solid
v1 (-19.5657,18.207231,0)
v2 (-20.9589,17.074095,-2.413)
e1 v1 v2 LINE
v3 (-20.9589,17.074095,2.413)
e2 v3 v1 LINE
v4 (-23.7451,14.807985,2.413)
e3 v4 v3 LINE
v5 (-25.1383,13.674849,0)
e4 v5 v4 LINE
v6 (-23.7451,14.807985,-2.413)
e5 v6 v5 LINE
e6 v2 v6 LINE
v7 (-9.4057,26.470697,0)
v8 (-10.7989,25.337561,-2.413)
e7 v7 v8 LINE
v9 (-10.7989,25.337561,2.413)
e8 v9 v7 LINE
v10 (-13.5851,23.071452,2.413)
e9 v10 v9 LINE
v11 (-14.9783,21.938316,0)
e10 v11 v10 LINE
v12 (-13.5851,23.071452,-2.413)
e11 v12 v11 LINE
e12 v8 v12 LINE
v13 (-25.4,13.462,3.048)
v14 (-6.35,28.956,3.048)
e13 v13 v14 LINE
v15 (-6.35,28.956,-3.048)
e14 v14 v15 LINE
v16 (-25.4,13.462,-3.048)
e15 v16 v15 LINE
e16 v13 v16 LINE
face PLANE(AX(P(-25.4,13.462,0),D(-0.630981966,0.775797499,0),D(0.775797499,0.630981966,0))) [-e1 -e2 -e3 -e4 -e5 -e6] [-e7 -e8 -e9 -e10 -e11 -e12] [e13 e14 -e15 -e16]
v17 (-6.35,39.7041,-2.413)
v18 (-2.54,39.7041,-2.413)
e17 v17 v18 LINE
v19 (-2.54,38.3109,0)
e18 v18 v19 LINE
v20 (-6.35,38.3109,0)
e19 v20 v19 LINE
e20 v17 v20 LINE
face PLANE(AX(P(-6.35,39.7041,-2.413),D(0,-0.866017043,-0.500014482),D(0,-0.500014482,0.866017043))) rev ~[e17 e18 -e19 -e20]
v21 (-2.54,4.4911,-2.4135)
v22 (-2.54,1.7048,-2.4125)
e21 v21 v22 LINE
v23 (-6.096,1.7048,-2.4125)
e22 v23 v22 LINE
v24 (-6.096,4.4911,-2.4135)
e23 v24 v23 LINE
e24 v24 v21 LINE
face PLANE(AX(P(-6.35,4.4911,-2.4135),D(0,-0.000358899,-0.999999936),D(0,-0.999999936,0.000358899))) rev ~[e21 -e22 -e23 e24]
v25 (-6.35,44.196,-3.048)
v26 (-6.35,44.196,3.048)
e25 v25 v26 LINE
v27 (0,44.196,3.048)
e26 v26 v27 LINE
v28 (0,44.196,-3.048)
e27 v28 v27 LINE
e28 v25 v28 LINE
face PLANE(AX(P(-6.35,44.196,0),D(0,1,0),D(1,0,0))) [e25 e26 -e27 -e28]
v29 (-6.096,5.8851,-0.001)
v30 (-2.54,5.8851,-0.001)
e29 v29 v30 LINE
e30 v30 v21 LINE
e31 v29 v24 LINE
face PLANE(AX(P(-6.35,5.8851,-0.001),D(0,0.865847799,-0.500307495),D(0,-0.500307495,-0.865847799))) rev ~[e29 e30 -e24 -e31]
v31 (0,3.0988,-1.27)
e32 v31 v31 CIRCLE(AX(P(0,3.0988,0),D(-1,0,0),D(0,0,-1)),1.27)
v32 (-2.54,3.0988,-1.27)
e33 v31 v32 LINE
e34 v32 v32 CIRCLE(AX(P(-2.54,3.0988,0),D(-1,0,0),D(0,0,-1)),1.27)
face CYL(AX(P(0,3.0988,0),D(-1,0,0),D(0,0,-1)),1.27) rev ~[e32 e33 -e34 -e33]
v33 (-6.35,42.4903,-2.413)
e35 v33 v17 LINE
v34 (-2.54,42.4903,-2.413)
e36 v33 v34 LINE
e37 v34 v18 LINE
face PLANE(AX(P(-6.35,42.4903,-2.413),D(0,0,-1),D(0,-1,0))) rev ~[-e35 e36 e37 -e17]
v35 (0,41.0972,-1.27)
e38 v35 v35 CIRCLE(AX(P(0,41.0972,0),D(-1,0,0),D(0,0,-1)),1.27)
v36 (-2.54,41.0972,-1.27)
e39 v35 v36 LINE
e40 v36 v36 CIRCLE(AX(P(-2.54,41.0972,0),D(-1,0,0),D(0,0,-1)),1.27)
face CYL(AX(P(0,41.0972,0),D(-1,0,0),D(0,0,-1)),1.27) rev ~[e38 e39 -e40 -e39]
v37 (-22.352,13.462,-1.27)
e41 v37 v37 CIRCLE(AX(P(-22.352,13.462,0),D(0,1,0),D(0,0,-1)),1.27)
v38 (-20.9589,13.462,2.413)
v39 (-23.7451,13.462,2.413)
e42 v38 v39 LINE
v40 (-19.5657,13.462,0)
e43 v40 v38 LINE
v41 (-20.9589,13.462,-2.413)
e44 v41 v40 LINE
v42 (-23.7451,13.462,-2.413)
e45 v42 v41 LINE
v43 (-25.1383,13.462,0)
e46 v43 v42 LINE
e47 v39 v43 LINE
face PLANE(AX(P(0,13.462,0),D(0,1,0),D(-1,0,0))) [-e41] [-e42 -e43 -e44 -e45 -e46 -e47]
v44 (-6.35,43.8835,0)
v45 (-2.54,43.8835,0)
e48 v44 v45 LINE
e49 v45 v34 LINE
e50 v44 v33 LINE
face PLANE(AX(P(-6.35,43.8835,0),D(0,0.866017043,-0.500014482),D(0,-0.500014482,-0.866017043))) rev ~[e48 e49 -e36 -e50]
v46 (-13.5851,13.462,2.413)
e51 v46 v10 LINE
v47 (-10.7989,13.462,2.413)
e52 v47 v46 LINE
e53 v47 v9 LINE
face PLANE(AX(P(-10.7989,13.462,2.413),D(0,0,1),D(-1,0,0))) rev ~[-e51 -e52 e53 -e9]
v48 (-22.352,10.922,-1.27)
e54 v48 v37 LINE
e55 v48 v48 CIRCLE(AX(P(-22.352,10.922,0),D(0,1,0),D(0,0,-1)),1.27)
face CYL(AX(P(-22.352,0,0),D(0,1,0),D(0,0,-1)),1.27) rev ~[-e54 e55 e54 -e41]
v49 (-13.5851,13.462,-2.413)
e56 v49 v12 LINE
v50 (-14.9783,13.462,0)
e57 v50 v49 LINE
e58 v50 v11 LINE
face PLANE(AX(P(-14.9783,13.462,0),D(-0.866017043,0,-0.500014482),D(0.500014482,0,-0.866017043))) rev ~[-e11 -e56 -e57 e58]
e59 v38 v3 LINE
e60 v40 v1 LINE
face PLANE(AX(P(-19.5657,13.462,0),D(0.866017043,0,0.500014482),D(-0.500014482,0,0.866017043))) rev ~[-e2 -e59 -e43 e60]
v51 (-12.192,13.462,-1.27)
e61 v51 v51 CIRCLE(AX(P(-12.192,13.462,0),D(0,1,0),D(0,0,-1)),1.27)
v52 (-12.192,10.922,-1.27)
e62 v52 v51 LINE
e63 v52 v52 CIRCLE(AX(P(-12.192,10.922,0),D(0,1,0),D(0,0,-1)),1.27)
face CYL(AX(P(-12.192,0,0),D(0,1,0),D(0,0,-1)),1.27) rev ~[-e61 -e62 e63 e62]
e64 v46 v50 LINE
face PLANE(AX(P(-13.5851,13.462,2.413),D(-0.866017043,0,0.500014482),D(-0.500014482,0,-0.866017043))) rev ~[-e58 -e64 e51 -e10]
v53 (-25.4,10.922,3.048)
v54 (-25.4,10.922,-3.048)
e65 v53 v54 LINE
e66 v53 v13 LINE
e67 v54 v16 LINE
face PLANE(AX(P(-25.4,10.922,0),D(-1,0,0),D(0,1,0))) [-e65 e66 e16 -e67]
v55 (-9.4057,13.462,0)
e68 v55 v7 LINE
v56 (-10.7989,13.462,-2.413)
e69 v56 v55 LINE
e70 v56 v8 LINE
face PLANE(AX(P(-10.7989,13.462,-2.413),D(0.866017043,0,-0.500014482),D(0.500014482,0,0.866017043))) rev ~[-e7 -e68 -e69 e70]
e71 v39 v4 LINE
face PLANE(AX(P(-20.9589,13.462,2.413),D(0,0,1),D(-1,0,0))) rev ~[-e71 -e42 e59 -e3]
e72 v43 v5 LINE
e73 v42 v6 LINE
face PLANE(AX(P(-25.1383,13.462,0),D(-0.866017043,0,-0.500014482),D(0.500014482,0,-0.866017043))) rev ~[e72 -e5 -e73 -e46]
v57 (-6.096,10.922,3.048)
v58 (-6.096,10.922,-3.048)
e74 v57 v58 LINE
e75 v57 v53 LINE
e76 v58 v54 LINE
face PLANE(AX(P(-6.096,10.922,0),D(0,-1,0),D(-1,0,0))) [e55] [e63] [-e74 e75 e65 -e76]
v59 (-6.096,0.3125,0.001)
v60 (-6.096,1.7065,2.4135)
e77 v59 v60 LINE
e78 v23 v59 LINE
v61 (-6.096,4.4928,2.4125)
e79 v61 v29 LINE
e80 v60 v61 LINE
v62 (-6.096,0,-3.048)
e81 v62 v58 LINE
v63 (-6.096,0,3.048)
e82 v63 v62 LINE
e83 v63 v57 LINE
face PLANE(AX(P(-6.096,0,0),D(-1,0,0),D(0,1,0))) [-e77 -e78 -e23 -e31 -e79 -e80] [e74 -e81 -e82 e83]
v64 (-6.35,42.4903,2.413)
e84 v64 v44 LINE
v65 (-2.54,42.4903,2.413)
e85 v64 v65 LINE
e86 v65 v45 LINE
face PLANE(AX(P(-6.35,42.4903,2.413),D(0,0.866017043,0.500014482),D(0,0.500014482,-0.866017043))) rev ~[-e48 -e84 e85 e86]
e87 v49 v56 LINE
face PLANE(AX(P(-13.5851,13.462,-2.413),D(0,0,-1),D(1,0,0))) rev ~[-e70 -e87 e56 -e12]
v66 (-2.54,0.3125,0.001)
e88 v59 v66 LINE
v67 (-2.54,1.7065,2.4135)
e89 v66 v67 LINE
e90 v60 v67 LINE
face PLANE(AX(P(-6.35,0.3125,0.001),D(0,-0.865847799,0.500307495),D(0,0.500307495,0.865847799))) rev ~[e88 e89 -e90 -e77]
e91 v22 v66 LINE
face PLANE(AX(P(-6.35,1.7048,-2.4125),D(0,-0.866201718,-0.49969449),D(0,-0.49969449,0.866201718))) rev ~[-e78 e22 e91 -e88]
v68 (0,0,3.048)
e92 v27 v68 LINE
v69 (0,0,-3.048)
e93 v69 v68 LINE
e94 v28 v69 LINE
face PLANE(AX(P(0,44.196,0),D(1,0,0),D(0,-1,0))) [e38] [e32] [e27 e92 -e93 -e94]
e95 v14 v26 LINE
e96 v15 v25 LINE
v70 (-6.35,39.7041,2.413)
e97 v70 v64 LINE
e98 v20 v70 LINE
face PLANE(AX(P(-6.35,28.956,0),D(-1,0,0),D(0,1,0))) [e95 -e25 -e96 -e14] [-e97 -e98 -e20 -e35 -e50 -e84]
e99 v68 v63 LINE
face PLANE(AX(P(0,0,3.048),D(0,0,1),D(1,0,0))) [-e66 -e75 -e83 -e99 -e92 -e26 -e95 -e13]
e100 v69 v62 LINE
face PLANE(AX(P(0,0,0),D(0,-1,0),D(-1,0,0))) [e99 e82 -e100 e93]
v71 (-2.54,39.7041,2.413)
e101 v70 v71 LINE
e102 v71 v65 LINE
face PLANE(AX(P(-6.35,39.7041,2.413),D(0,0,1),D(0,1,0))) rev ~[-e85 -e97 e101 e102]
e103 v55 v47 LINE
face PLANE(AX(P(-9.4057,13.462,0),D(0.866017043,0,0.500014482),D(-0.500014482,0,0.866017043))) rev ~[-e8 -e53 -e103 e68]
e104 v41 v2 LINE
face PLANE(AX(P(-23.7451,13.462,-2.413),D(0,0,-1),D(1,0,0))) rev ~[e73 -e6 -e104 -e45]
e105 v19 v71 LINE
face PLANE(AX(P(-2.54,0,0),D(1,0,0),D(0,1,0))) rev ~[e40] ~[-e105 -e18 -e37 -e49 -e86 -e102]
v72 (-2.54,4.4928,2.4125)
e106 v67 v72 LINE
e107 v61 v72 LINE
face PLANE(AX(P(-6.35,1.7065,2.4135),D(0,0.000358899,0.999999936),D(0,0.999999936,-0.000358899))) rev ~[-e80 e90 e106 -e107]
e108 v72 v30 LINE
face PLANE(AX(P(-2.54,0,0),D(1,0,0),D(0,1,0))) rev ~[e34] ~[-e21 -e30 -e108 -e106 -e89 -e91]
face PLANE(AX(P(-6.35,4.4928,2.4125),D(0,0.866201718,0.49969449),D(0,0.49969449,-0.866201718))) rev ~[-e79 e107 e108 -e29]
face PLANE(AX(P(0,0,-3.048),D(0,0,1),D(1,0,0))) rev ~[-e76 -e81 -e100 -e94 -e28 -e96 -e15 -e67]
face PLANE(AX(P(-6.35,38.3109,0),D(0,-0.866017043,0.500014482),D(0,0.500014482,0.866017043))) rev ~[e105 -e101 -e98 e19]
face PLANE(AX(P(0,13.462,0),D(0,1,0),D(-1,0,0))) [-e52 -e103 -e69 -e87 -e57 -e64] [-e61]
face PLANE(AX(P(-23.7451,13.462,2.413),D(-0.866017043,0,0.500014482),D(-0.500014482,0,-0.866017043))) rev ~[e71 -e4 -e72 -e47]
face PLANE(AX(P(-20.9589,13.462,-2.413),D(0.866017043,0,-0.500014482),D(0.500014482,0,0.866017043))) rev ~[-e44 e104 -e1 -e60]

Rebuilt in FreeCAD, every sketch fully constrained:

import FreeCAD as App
import Part
import Sketcher

V = App.Vector
Q = App.Units.Quantity

doc = App.newDocument("Part")
body = doc.addObject("PartDesign::Body", "Body")

sketch1 = body.newObject("Sketcher::SketchObject", "Sketch")
sketch1.AttachmentSupport = (doc.getObject("XY_Plane"), [""])
sketch1.MapMode = "FlatFace"
sketch1.addGeometry(Part.LineSegment(V(-6.1, 0, 0), V(0, 0, 0)), False)
sketch1.addGeometry(Part.LineSegment(V(0, 0, 0), V(0, 44.2, 0)), False)
sketch1.addGeometry(Part.LineSegment(V(0, 44.2, 0), V(-6.3, 44.2, 0)), False)
sketch1.addGeometry(Part.LineSegment(V(-6.3, 44.2, 0), V(-6.3, 29, 0)), False)
sketch1.addGeometry(Part.LineSegment(V(-6.3, 29, 0), V(-25.4, 13.5, 0)), False)
sketch1.addGeometry(Part.LineSegment(V(-25.4, 13.5, 0), V(-25.4, 10.9, 0)), False)
sketch1.addGeometry(Part.LineSegment(V(-25.4, 10.9, 0), V(-6.1, 10.9, 0)), False)
sketch1.addGeometry(Part.LineSegment(V(-6.1, 10.9, 0), V(-6.1, 0, 0)), False)
sketch1.addConstraint(Sketcher.Constraint("Coincident", 0, 2, 1, 1))
sketch1.addConstraint(Sketcher.Constraint("Coincident", 1, 2, 2, 1))
sketch1.addConstraint(Sketcher.Constraint("Coincident", 2, 2, 3, 1))
sketch1.addConstraint(Sketcher.Constraint("Coincident", 3, 2, 4, 1))
sketch1.addConstraint(Sketcher.Constraint("Coincident", 4, 2, 5, 1))
sketch1.addConstraint(Sketcher.Constraint("Coincident", 5, 2, 6, 1))
sketch1.addConstraint(Sketcher.Constraint("Coincident", 6, 2, 7, 1))
sketch1.addConstraint(Sketcher.Constraint("Coincident", 7, 2, 0, 1))
sketch1.addConstraint(Sketcher.Constraint("Horizontal", 0))
sketch1.addConstraint(Sketcher.Constraint("Vertical", 1))
sketch1.addConstraint(Sketcher.Constraint("Horizontal", 2))
sketch1.addConstraint(Sketcher.Constraint("Vertical", 3))
sketch1.addConstraint(Sketcher.Constraint("Vertical", 5))
sketch1.addConstraint(Sketcher.Constraint("Horizontal", 6))
sketch1.addConstraint(Sketcher.Constraint("Vertical", 7))
sketch1.addConstraint(Sketcher.Constraint("Coincident", 0, 2, -1, 1))
sketch1.addConstraint(Sketcher.Constraint("DistanceY", 3, 2, 3, 1, Q("0.6 in")))
sketch1.addConstraint(Sketcher.Constraint("DistanceY", 5, 2, 5, 1, Q("0.1 in")))
sketch1.addConstraint(Sketcher.Constraint("DistanceX", 2, 2, 2, 1, Q("0.25 in")))
sketch1.addConstraint(Sketcher.Constraint("DistanceX", 6, 1, 6, 2, Q("0.76 in")))
sketch1.addConstraint(Sketcher.Constraint("DistanceY", 1, 1, 1, 2, Q("1.74 in")))
sketch1.addConstraint(Sketcher.Constraint("DistanceY", 7, 2, 7, 1, Q("0.43 in")))
sketch1.addConstraint(Sketcher.Constraint("DistanceX", 4, 2, -1, 1, Q("1 in")))
pad1 = body.newObject("PartDesign::Pad", "Pad")
pad1.Profile = sketch1
pad1.Length = Q("0.24 in")
pad1.Midplane = True

sketch2 = body.newObject("Sketcher::SketchObject", "Sketch001")
sketch2.AttachmentSupport = (doc.getObject("YZ_Plane"), [""])
sketch2.MapMode = "FlatFace"
sketch2.AttachmentOffset = App.Placement(V(0, 0, -0.25 * 25.4), App.Rotation())
sketch2.addGeometry(Part.LineSegment(V(39.7, 2.4, 0), V(38.3, 0, 0)), False)
sketch2.addGeometry(Part.LineSegment(V(38.3, 0, 0), V(39.7, -2.4, 0)), False)
sketch2.addGeometry(Part.LineSegment(V(39.7, -2.4, 0), V(42.5, -2.4, 0)), False)
sketch2.addGeometry(Part.LineSegment(V(42.5, -2.4, 0), V(43.9, 0, 0)), False)
sketch2.addGeometry(Part.LineSegment(V(43.9, 0, 0), V(42.5, 2.4, 0)), False)
sketch2.addGeometry(Part.LineSegment(V(42.5, 2.4, 0), V(39.7, 2.4, 0)), False)
sketch2.addConstraint(Sketcher.Constraint("Coincident", 0, 2, 1, 1))
sketch2.addConstraint(Sketcher.Constraint("Coincident", 1, 2, 2, 1))
sketch2.addConstraint(Sketcher.Constraint("Coincident", 2, 2, 3, 1))
sketch2.addConstraint(Sketcher.Constraint("Coincident", 3, 2, 4, 1))
sketch2.addConstraint(Sketcher.Constraint("Coincident", 4, 2, 5, 1))
sketch2.addConstraint(Sketcher.Constraint("Coincident", 5, 2, 0, 1))
sketch2.addConstraint(Sketcher.Constraint("Horizontal", 2))
sketch2.addConstraint(Sketcher.Constraint("Horizontal", 5))
sketch2.addConstraint(Sketcher.Constraint("Symmetric", 2, 2, 4, 2, -1))
sketch2.addConstraint(Sketcher.Constraint("PointOnObject", 0, 2, -1))
sketch2.addConstraint(Sketcher.Constraint("PointOnObject", 3, 2, -1))
sketch2.addConstraint(Sketcher.Constraint("Parallel", 0, 3))
sketch2.addConstraint(Sketcher.Constraint("Parallel", 1, 4))
sketch2.addConstraint(Sketcher.Constraint("DistanceY", 2, 2, 4, 2, Q("0.19 in")))
sketch2.addConstraint(Sketcher.Constraint("Angle", 0, Q("-120.001 deg")))
sketch2.addConstraint(Sketcher.Constraint("DistanceX", 2, 1, 2, 2, Q("0.1097 in")))
sketch2.addConstraint(Sketcher.Constraint("DistanceX", -1, 1, 0, 2, Q("1.5083 in")))
pocket1 = body.newObject("PartDesign::Pocket", "Pocket")
pocket1.Profile = sketch2
pocket1.Length = Q("0.15 in")
pocket1.Reversed = True

sketch3 = body.newObject("Sketcher::SketchObject", "Sketch002")
sketch3.AttachmentSupport = (doc.getObject("YZ_Plane"), [""])
sketch3.MapMode = "FlatFace"
sketch3.AttachmentOffset = App.Placement(V(0, 0, -0.25 * 25.4), App.Rotation())
sketch3.addGeometry(Part.LineSegment(V(4.5, -2.4, 0), V(5.9, 0, 0)), False)
sketch3.addGeometry(Part.LineSegment(V(5.9, 0, 0), V(4.5, 2.4, 0)), False)
sketch3.addGeometry(Part.LineSegment(V(4.5, 2.4, 0), V(1.7, 2.4, 0)), False)
sketch3.addGeometry(Part.LineSegment(V(1.7, 2.4, 0), V(0.3, 0, 0)), False)
sketch3.addGeometry(Part.LineSegment(V(0.3, 0, 0), V(1.7, -2.4, 0)), False)
sketch3.addGeometry(Part.LineSegment(V(1.7, -2.4, 0), V(4.5, -2.4, 0)), False)
sketch3.addConstraint(Sketcher.Constraint("Coincident", 0, 2, 1, 1))
sketch3.addConstraint(Sketcher.Constraint("Coincident", 1, 2, 2, 1))
sketch3.addConstraint(Sketcher.Constraint("Coincident", 2, 2, 3, 1))
sketch3.addConstraint(Sketcher.Constraint("Coincident", 3, 2, 4, 1))
sketch3.addConstraint(Sketcher.Constraint("Coincident", 4, 2, 5, 1))
sketch3.addConstraint(Sketcher.Constraint("Coincident", 5, 2, 0, 1))
sketch3.addConstraint(Sketcher.Constraint("Parallel", 0, 3))
sketch3.addConstraint(Sketcher.Constraint("Parallel", 1, 4))
sketch3.addConstraint(Sketcher.Constraint("Parallel", 2, 5))
sketch3.addConstraint(Sketcher.Constraint("Equal", 0, 1))
sketch3.addConstraint(Sketcher.Constraint("Equal", 1, 2))
sketch3.addConstraint(Sketcher.Constraint("Equal", 2, 3))
sketch3.addConstraint(Sketcher.Constraint("DistanceY", 4, 2, 2, 2, Q("0.19 in")))
sketch3.addConstraint(Sketcher.Constraint("Angle", 0, Q("59.9797 deg")))
sketch3.addConstraint(Sketcher.Constraint("Angle", 1, Q("119.9798 deg")))
sketch3.addConstraint(Sketcher.Constraint("Angle", 2, Q("179.9794 deg")))
sketch3.addConstraint(Sketcher.Constraint("DistanceX", -1, 1, 0, 2, Q("0.2317 in")))
sketch3.addConstraint(Sketcher.Constraint("DistanceY", 0, 2, -1, 1, 0.001))
pocket2 = body.newObject("PartDesign::Pocket", "Pocket001")
pocket2.Profile = sketch3
pocket2.Length = Q("0.15 in")
pocket2.Reversed = True

sketch4 = body.newObject("Sketcher::SketchObject", "Sketch003")
sketch4.AttachmentSupport = (doc.getObject("YZ_Plane"), [""])
sketch4.MapMode = "FlatFace"
sketch4.addGeometry(Part.Circle(V(3.1, 0, 0), V(0, 0, 1), 1.3), False)
sketch4.addGeometry(Part.Circle(V(41.1, 0, 0), V(0, 0, 1), 1.3), False)
sketch4.addConstraint(Sketcher.Constraint("Equal", 0, 1))
sketch4.addConstraint(Sketcher.Constraint("PointOnObject", 0, 3, -1))
sketch4.addConstraint(Sketcher.Constraint("PointOnObject", 1, 3, -1))
sketch4.addConstraint(Sketcher.Constraint("Diameter", 0, Q("0.1 in")))
sketch4.addConstraint(Sketcher.Constraint("DistanceX", -1, 1, 0, 3, Q("0.122 in")))
sketch4.addConstraint(Sketcher.Constraint("DistanceX", -1, 1, 1, 3, Q("1.618 in")))
doc.recompute()
hole = body.newObject("PartDesign::Hole", "Hole")
hole.Profile = sketch4
hole.ThreadType = "None"
hole.Diameter = Q("0.1 in")
hole.DepthType = "ThroughAll"

sketch5 = body.newObject("Sketcher::SketchObject", "Sketch004")
sketch5.AttachmentSupport = (doc.getObject("XZ_Plane"), [""])
sketch5.MapMode = "FlatFace"
sketch5.AttachmentOffset = App.Placement(V(0, 0, -0.53 * 25.4), App.Rotation())
sketch5.addGeometry(Part.LineSegment(V(-21, 2.4, 0), V(-19.6, 0, 0)), False)
sketch5.addGeometry(Part.LineSegment(V(-19.6, 0, 0), V(-21, -2.4, 0)), False)
sketch5.addGeometry(Part.LineSegment(V(-21, -2.4, 0), V(-23.7, -2.4, 0)), False)
sketch5.addGeometry(Part.LineSegment(V(-23.7, -2.4, 0), V(-25.1, 0, 0)), False)
sketch5.addGeometry(Part.LineSegment(V(-25.1, 0, 0), V(-23.7, 2.4, 0)), False)
sketch5.addGeometry(Part.LineSegment(V(-23.7, 2.4, 0), V(-21, 2.4, 0)), False)
sketch5.addGeometry(Part.LineSegment(V(-10.8, 2.4, 0), V(-9.4, 0, 0)), False)
sketch5.addGeometry(Part.LineSegment(V(-9.4, 0, 0), V(-10.8, -2.4, 0)), False)
sketch5.addGeometry(Part.LineSegment(V(-10.8, -2.4, 0), V(-13.6, -2.4, 0)), False)
sketch5.addGeometry(Part.LineSegment(V(-13.6, -2.4, 0), V(-15, 0, 0)), False)
sketch5.addGeometry(Part.LineSegment(V(-15, 0, 0), V(-13.6, 2.4, 0)), False)
sketch5.addGeometry(Part.LineSegment(V(-13.6, 2.4, 0), V(-10.8, 2.4, 0)), False)
sketch5.addConstraint(Sketcher.Constraint("Coincident", 0, 2, 1, 1))
sketch5.addConstraint(Sketcher.Constraint("Coincident", 1, 2, 2, 1))
sketch5.addConstraint(Sketcher.Constraint("Coincident", 2, 2, 3, 1))
sketch5.addConstraint(Sketcher.Constraint("Coincident", 3, 2, 4, 1))
sketch5.addConstraint(Sketcher.Constraint("Coincident", 4, 2, 5, 1))
sketch5.addConstraint(Sketcher.Constraint("Coincident", 5, 2, 0, 1))
sketch5.addConstraint(Sketcher.Constraint("Coincident", 6, 2, 7, 1))
sketch5.addConstraint(Sketcher.Constraint("Coincident", 7, 2, 8, 1))
sketch5.addConstraint(Sketcher.Constraint("Coincident", 8, 2, 9, 1))
sketch5.addConstraint(Sketcher.Constraint("Coincident", 9, 2, 10, 1))
sketch5.addConstraint(Sketcher.Constraint("Coincident", 10, 2, 11, 1))
sketch5.addConstraint(Sketcher.Constraint("Coincident", 11, 2, 6, 1))
sketch5.addConstraint(Sketcher.Constraint("Horizontal", 2))
sketch5.addConstraint(Sketcher.Constraint("Horizontal", 5))
sketch5.addConstraint(Sketcher.Constraint("Horizontal", 8))
sketch5.addConstraint(Sketcher.Constraint("Horizontal", 11))
sketch5.addConstraint(Sketcher.Constraint("Symmetric", 2, 2, 4, 2, -1))
sketch5.addConstraint(Sketcher.Constraint("Symmetric", 8, 2, 10, 2, -1))
sketch5.addConstraint(Sketcher.Constraint("PointOnObject", 0, 2, -1))
sketch5.addConstraint(Sketcher.Constraint("PointOnObject", 3, 2, -1))
sketch5.addConstraint(Sketcher.Constraint("PointOnObject", 6, 2, -1))
sketch5.addConstraint(Sketcher.Constraint("PointOnObject", 9, 2, -1))
sketch5.addConstraint(Sketcher.Constraint("Parallel", 0, 3))
sketch5.addConstraint(Sketcher.Constraint("Parallel", 1, 4))
sketch5.addConstraint(Sketcher.Constraint("Parallel", 3, 6))
sketch5.addConstraint(Sketcher.Constraint("Parallel", 4, 7))
sketch5.addConstraint(Sketcher.Constraint("Parallel", 6, 9))
sketch5.addConstraint(Sketcher.Constraint("Horizontal", 2, 2, 7, 2))
sketch5.addConstraint(Sketcher.Constraint("Equal", 5, 8))
sketch5.addConstraint(Sketcher.Constraint("DistanceX", 0, 2, 6, 2, Q("0.4 in")))
sketch5.addConstraint(Sketcher.Constraint("DistanceY", 2, 2, 4, 2, Q("0.19 in")))
sketch5.addConstraint(Sketcher.Constraint("Angle", 0, Q("-59.999 deg")))
sketch5.addConstraint(Sketcher.Constraint("DistanceX", 2, 2, 2, 1, Q("0.1097 in")))
sketch5.addConstraint(Sketcher.Constraint("DistanceX", 0, 2, -1, 1, Q("0.7703 in")))
pocket3 = body.newObject("PartDesign::Pocket", "Pocket002")
pocket3.Profile = sketch5
pocket3.Length = Q("0.6 in")

sketch6 = body.newObject("Sketcher::SketchObject", "Sketch005")
sketch6.AttachmentSupport = (doc.getObject("XZ_Plane"), [""])
sketch6.MapMode = "FlatFace"
sketch6.addGeometry(Part.Circle(V(-22.4, 0, 0), V(0, 0, 1), 1.3), False)
sketch6.addGeometry(Part.Circle(V(-12.2, 0, 0), V(0, 0, 1), 1.3), False)
sketch6.addConstraint(Sketcher.Constraint("Equal", 0, 1))
sketch6.addConstraint(Sketcher.Constraint("PointOnObject", 0, 3, -1))
sketch6.addConstraint(Sketcher.Constraint("PointOnObject", 1, 3, -1))
sketch6.addConstraint(Sketcher.Constraint("Diameter", 0, Q("0.1 in")))
sketch6.addConstraint(Sketcher.Constraint("DistanceX", 0, 3, 1, 3, Q("0.4 in")))
sketch6.addConstraint(Sketcher.Constraint("DistanceX", 0, 3, -1, 1, Q("0.88 in")))
doc.recompute()
hole2 = body.newObject("PartDesign::Hole", "Hole001")
hole2.Profile = sketch6
hole2.ThreadType = "None"
hole2.Diameter = Q("0.1 in")
hole2.DepthType = "ThroughAll"

doc.recompute()
